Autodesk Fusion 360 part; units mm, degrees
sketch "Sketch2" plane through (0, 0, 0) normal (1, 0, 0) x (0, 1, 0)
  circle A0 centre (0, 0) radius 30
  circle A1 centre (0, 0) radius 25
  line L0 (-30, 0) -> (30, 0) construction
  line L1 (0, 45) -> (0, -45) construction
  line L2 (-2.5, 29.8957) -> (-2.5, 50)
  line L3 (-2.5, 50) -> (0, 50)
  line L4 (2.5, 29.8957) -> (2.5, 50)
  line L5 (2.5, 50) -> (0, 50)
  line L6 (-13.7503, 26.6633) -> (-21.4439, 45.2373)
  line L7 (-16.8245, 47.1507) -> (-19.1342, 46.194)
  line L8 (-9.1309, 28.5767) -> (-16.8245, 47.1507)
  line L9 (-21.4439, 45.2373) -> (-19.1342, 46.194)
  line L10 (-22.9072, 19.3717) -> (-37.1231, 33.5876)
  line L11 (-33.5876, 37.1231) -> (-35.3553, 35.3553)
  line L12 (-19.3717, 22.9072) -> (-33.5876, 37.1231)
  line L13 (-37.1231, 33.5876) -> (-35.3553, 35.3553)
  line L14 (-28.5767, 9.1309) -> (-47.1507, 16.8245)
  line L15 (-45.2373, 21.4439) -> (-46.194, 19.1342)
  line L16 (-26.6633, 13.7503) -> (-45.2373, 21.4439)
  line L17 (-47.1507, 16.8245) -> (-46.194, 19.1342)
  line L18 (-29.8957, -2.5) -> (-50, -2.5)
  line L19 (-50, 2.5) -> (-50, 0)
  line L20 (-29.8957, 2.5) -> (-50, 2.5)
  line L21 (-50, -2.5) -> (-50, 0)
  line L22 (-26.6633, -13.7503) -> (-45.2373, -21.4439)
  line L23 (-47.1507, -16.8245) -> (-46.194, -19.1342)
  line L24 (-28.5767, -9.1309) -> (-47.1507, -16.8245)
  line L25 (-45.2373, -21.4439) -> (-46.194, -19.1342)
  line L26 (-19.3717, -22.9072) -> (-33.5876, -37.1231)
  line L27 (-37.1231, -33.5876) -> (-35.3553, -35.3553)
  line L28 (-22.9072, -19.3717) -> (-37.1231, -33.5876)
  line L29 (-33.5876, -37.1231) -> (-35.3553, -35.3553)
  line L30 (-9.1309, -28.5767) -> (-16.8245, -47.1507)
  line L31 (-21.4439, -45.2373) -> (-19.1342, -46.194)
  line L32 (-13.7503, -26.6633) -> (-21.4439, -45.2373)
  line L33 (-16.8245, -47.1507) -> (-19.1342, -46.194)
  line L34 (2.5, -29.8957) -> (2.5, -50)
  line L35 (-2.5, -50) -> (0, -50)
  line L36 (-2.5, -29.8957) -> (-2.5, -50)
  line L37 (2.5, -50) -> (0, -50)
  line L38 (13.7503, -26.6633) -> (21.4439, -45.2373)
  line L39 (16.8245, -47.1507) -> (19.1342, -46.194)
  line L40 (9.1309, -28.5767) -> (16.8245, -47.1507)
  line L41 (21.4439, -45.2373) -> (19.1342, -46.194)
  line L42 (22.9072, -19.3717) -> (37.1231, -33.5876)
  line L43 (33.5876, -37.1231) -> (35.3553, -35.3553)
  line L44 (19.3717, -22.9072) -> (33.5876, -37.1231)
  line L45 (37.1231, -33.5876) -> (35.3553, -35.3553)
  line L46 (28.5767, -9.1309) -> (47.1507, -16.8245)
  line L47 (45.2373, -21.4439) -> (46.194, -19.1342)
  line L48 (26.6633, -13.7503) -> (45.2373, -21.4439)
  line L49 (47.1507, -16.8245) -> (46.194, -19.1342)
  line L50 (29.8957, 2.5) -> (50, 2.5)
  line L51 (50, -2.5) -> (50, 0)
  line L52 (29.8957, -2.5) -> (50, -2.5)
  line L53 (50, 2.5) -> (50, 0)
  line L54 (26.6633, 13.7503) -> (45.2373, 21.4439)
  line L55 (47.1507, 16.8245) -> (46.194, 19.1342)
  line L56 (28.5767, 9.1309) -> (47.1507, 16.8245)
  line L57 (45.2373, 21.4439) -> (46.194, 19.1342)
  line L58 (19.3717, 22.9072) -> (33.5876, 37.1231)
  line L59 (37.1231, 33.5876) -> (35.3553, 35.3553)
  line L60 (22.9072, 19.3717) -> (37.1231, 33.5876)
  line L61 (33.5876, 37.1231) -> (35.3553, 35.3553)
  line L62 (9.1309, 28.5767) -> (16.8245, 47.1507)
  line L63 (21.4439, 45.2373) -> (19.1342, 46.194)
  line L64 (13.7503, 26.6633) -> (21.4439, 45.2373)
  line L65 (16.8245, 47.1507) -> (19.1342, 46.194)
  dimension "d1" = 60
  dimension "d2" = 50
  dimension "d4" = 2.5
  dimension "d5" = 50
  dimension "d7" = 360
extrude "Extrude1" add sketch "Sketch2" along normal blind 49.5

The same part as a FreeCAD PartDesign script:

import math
import FreeCAD as App
import Part
import Sketcher
from FreeCAD import Vector
Q = App.Units.Quantity

doc = App.newDocument("Part")
body = doc.addObject("PartDesign::Body", "Body")

# Sketch on YZ plane
sketch1 = body.newObject("Sketcher::SketchObject", "Sketch")
sketch1.AttachmentSupport = (doc.getObject("YZ_Plane"), [""])
sketch1.MapMode = "FlatFace"
sketch1.addGeometry([
    Part.ArcOfCircle(Part.Circle(Vector(0, 0, 0), Vector(0, 0, 1), 30), math.radians(-17.72), math.radians(-4.78)),  # 0
    Part.LineSegment(Vector(29.9, -2.5, 0), Vector(50, -2.5, 0)),  # 1
    Part.LineSegment(Vector(50, -2.5, 0), Vector(50, 2.5, 0)),  # 2
    Part.LineSegment(Vector(50, 2.5, 0), Vector(29.9, 2.5, 0)),  # 3
    Part.ArcOfCircle(Part.Circle(Vector(0, 0, 0), Vector(0, 0, 1), 30), math.radians(4.78), math.radians(17.72)),  # 4
    Part.LineSegment(Vector(28.6, 9.1, 0), Vector(47.2, 16.8, 0)),  # 5
    Part.LineSegment(Vector(47.2, 16.8, 0), Vector(45.2, 21.4, 0)),  # 6
    Part.LineSegment(Vector(45.2, 21.4, 0), Vector(26.7, 13.8, 0)),  # 7
    Part.ArcOfCircle(Part.Circle(Vector(0, 0, 0), Vector(0, 0, 1), 30), math.radians(27.28), math.radians(40.22)),  # 8
    Part.LineSegment(Vector(22.9, 19.4, 0), Vector(37.1, 33.6, 0)),  # 9
    Part.LineSegment(Vector(37.1, 33.6, 0), Vector(35.4, 35.4, 0)),  # 10
    Part.LineSegment(Vector(35.4, 35.4, 0), Vector(33.6, 37.1, 0)),  # 11
    Part.LineSegment(Vector(33.6, 37.1, 0), Vector(19.4, 22.9, 0)),  # 12
    Part.ArcOfCircle(Part.Circle(Vector(0, 0, 0), Vector(0, 0, 1), 30), math.radians(49.78), math.radians(62.72)),  # 13
    Part.LineSegment(Vector(13.8, 26.7, 0), Vector(21.4, 45.2, 0)),  # 14
    Part.LineSegment(Vector(21.4, 45.2, 0), Vector(16.8, 47.2, 0)),  # 15
    Part.LineSegment(Vector(16.8, 47.2, 0), Vector(9.1, 28.6, 0)),  # 16
    Part.ArcOfCircle(Part.Circle(Vector(0, 0, 0), Vector(0, 0, 1), 30), math.radians(72.28), math.radians(85.22)),  # 17
    Part.LineSegment(Vector(2.5, 29.9, 0), Vector(2.5, 50, 0)),  # 18
    Part.LineSegment(Vector(2.5, 50, 0), Vector(-2.5, 50, 0)),  # 19
    Part.LineSegment(Vector(-2.5, 50, 0), Vector(-2.5, 29.9, 0)),  # 20
    Part.ArcOfCircle(Part.Circle(Vector(0, 0, 0), Vector(0, 0, 1), 30), math.radians(94.78), math.radians(107.72)),  # 21
    Part.LineSegment(Vector(-9.1, 28.6, 0), Vector(-16.8, 47.2, 0)),  # 22
    Part.LineSegment(Vector(-16.8, 47.2, 0), Vector(-21.4, 45.2, 0)),  # 23
    Part.LineSegment(Vector(-21.4, 45.2, 0), Vector(-13.8, 26.7, 0)),  # 24
    Part.ArcOfCircle(Part.Circle(Vector(0, 0, 0), Vector(0, 0, 1), 30), math.radians(117.28), math.radians(130.22)),  # 25
    Part.LineSegment(Vector(-19.4, 22.9, 0), Vector(-33.6, 37.1, 0)),  # 26
    Part.LineSegment(Vector(-33.6, 37.1, 0), Vector(-35.4, 35.4, 0)),  # 27
    Part.LineSegment(Vector(-35.4, 35.4, 0), Vector(-37.1, 33.6, 0)),  # 28
    Part.LineSegment(Vector(-37.1, 33.6, 0), Vector(-22.9, 19.4, 0)),  # 29
    Part.ArcOfCircle(Part.Circle(Vector(0, 0, 0), Vector(0, 0, 1), 30), math.radians(139.78), math.radians(152.72)),  # 30
    Part.LineSegment(Vector(-26.7, 13.8, 0), Vector(-45.2, 21.4, 0)),  # 31
    Part.LineSegment(Vector(-45.2, 21.4, 0), Vector(-47.2, 16.8, 0)),  # 32
    Part.LineSegment(Vector(-47.2, 16.8, 0), Vector(-28.6, 9.1, 0)),  # 33
    Part.ArcOfCircle(Part.Circle(Vector(0, 0, 0), Vector(0, 0, 1), 30), math.radians(162.28), math.radians(175.22)),  # 34
    Part.LineSegment(Vector(-29.9, 2.5, 0), Vector(-50, 2.5, 0)),  # 35
    Part.LineSegment(Vector(-50, 2.5, 0), Vector(-50, -2.5, 0)),  # 36
    Part.LineSegment(Vector(-50, -2.5, 0), Vector(-29.9, -2.5, 0)),  # 37
    Part.ArcOfCircle(Part.Circle(Vector(0, 0, 0), Vector(0, 0, 1), 30), math.radians(-175.22), math.radians(-162.28)),  # 38
    Part.LineSegment(Vector(-28.6, -9.1, 0), Vector(-47.2, -16.8, 0)),  # 39
    Part.LineSegment(Vector(-47.2, -16.8, 0), Vector(-45.2, -21.4, 0)),  # 40
    Part.LineSegment(Vector(-45.2, -21.4, 0), Vector(-26.7, -13.8, 0)),  # 41
    Part.ArcOfCircle(Part.Circle(Vector(0, 0, 0), Vector(0, 0, 1), 30), math.radians(-152.72), math.radians(-139.78)),  # 42
    Part.LineSegment(Vector(-22.9, -19.4, 0), Vector(-37.1, -33.6, 0)),  # 43
    Part.LineSegment(Vector(-37.1, -33.6, 0), Vector(-35.4, -35.4, 0)),  # 44
    Part.LineSegment(Vector(-35.4, -35.4, 0), Vector(-33.6, -37.1, 0)),  # 45
    Part.LineSegment(Vector(-33.6, -37.1, 0), Vector(-19.4, -22.9, 0)),  # 46
    Part.ArcOfCircle(Part.Circle(Vector(0, 0, 0), Vector(0, 0, 1), 30), math.radians(-130.22), math.radians(-117.28)),  # 47
    Part.LineSegment(Vector(-13.8, -26.7, 0), Vector(-21.4, -45.2, 0)),  # 48
    Part.LineSegment(Vector(-21.4, -45.2, 0), Vector(-16.8, -47.2, 0)),  # 49
    Part.LineSegment(Vector(-16.8, -47.2, 0), Vector(-9.1, -28.6, 0)),  # 50
    Part.ArcOfCircle(Part.Circle(Vector(0, 0, 0), Vector(0, 0, 1), 30), math.radians(-107.72), math.radians(-94.78)),  # 51
    Part.LineSegment(Vector(-2.5, -29.9, 0), Vector(-2.5, -50, 0)),  # 52
    Part.LineSegment(Vector(-2.5, -50, 0), Vector(2.5, -50, 0)),  # 53
    Part.LineSegment(Vector(2.5, -50, 0), Vector(2.5, -29.9, 0)),  # 54
    Part.ArcOfCircle(Part.Circle(Vector(0, 0, 0), Vector(0, 0, 1), 30), math.radians(-85.22), math.radians(-72.28)),  # 55
    Part.LineSegment(Vector(9.1, -28.6, 0), Vector(16.8, -47.2, 0)),  # 56
    Part.LineSegment(Vector(16.8, -47.2, 0), Vector(21.4, -45.2, 0)),  # 57
    Part.LineSegment(Vector(21.4, -45.2, 0), Vector(13.8, -26.7, 0)),  # 58
    Part.ArcOfCircle(Part.Circle(Vector(0, 0, 0), Vector(0, 0, 1), 30), math.radians(-62.72), math.radians(-49.78)),  # 59
    Part.LineSegment(Vector(19.4, -22.9, 0), Vector(33.6, -37.1, 0)),  # 60
    Part.LineSegment(Vector(33.6, -37.1, 0), Vector(35.4, -35.4, 0)),  # 61
    Part.LineSegment(Vector(35.4, -35.4, 0), Vector(37.1, -33.6, 0)),  # 62
    Part.LineSegment(Vector(37.1, -33.6, 0), Vector(22.9, -19.4, 0)),  # 63
    Part.ArcOfCircle(Part.Circle(Vector(0, 0, 0), Vector(0, 0, 1), 30), math.radians(-40.22), math.radians(-27.28)),  # 64
    Part.LineSegment(Vector(26.7, -13.8, 0), Vector(45.2, -21.4, 0)),  # 65
    Part.LineSegment(Vector(45.2, -21.4, 0), Vector(47.2, -16.8, 0)),  # 66
    Part.LineSegment(Vector(47.2, -16.8, 0), Vector(28.6, -9.1, 0)),  # 67
    Part.Circle(Vector(0, 0, 0), Vector(0, 0, 1), 25),  # 68
], False)
sketch1.addConstraint([
    Sketcher.Constraint("Coincident", 0, 2, 1, 1),
    Sketcher.Constraint("Coincident", 1, 2, 2, 1),
    Sketcher.Constraint("Coincident", 2, 2, 3, 1),
    Sketcher.Constraint("Coincident", 3, 2, 4, 1),
    Sketcher.Constraint("Coincident", 4, 2, 5, 1),
    Sketcher.Constraint("Coincident", 5, 2, 6, 1),
    Sketcher.Constraint("Coincident", 6, 2, 7, 1),
    Sketcher.Constraint("Coincident", 7, 2, 8, 1),
    Sketcher.Constraint("Coincident", 8, 2, 9, 1),
    Sketcher.Constraint("Coincident", 9, 2, 10, 1),
    Sketcher.Constraint("Coincident", 10, 2, 11, 1),
    Sketcher.Constraint("Coincident", 11, 2, 12, 1),
    Sketcher.Constraint("Coincident", 12, 2, 13, 1),
    Sketcher.Constraint("Coincident", 13, 2, 14, 1),
    Sketcher.Constraint("Coincident", 14, 2, 15, 1),
    Sketcher.Constraint("Coincident", 15, 2, 16, 1),
    Sketcher.Constraint("Coincident", 16, 2, 17, 1),
    Sketcher.Constraint("Coincident", 17, 2, 18, 1),
    Sketcher.Constraint("Coincident", 18, 2, 19, 1),
    Sketcher.Constraint("Coincident", 19, 2, 20, 1),
    Sketcher.Constraint("Coincident", 20, 2, 21, 1),
    Sketcher.Constraint("Coincident", 21, 2, 22, 1),
    Sketcher.Constraint("Coincident", 22, 2, 23, 1),
    Sketcher.Constraint("Coincident", 23, 2, 24, 1),
    Sketcher.Constraint("Coincident", 24, 2, 25, 1),
    Sketcher.Constraint("Coincident", 25, 2, 26, 1),
    Sketcher.Constraint("Coincident", 26, 2, 27, 1),
    Sketcher.Constraint("Coincident", 27, 2, 28, 1),
    Sketcher.Constraint("Coincident", 28, 2, 29, 1),
    Sketcher.Constraint("Coincident", 29, 2, 30, 1),
    Sketcher.Constraint("Coincident", 30, 2, 31, 1),
    Sketcher.Constraint("Coincident", 31, 2, 32, 1),
    Sketcher.Constraint("Coincident", 32, 2, 33, 1),
    Sketcher.Constraint("Coincident", 33, 2, 34, 1),
    Sketcher.Constraint("Coincident", 34, 2, 35, 1),
    Sketcher.Constraint("Coincident", 35, 2, 36, 1),
    Sketcher.Constraint("Coincident", 36, 2, 37, 1),
    Sketcher.Constraint("Coincident", 37, 2, 38, 1),
    Sketcher.Constraint("Coincident", 38, 2, 39, 1),
    Sketcher.Constraint("Coincident", 39, 2, 40, 1),
    Sketcher.Constraint("Coincident", 40, 2, 41, 1),
    Sketcher.Constraint("Coincident", 41, 2, 42, 1),
    Sketcher.Constraint("Coincident", 42, 2, 43, 1),
    Sketcher.Constraint("Coincident", 43, 2, 44, 1),
    Sketcher.Constraint("Coincident", 44, 2, 45, 1),
    Sketcher.Constraint("Coincident", 45, 2, 46, 1),
    Sketcher.Constraint("Coincident", 46, 2, 47, 1),
    Sketcher.Constraint("Coincident", 47, 2, 48, 1),
    Sketcher.Constraint("Coincident", 48, 2, 49, 1),
    Sketcher.Constraint("Coincident", 49, 2, 50, 1),
    Sketcher.Constraint("Coincident", 50, 2, 51, 1),
    Sketcher.Constraint("Coincident", 51, 2, 52, 1),
    Sketcher.Constraint("Coincident", 52, 2, 53, 1),
    Sketcher.Constraint("Coincident", 53, 2, 54, 1),
    Sketcher.Constraint("Coincident", 54, 2, 55, 1),
    Sketcher.Constraint("Coincident", 55, 2, 56, 1),
    Sketcher.Constraint("Coincident", 56, 2, 57, 1),
    Sketcher.Constraint("Coincident", 57, 2, 58, 1),
    Sketcher.Constraint("Coincident", 58, 2, 59, 1),
    Sketcher.Constraint("Coincident", 59, 2, 60, 1),
    Sketcher.Constraint("Coincident", 60, 2, 61, 1),
    Sketcher.Constraint("Coincident", 61, 2, 62, 1),
    Sketcher.Constraint("Coincident", 62, 2, 63, 1),
    Sketcher.Constraint("Coincident", 63, 2, 64, 1),
    Sketcher.Constraint("Coincident", 64, 2, 65, 1),
    Sketcher.Constraint("Coincident", 65, 2, 66, 1),
    Sketcher.Constraint("Coincident", 66, 2, 67, 1),
    Sketcher.Constraint("Coincident", 67, 2, 0, 1),
    Sketcher.Constraint("Horizontal", 1),
    Sketcher.Constraint("Vertical", 2),
    Sketcher.Constraint("Horizontal", 3),
    Sketcher.Constraint("Vertical", 18),
    Sketcher.Constraint("Horizontal", 19),
    Sketcher.Constraint("Vertical", 20),
    Sketcher.Constraint("Horizontal", 35),
    Sketcher.Constraint("Vertical", 36),
    Sketcher.Constraint("Horizontal", 37),
    Sketcher.Constraint("Vertical", 52),
    Sketcher.Constraint("Horizontal", 53),
    Sketcher.Constraint("Vertical", 54),
    Sketcher.Constraint("Coincident", 0, 3, -1, 1),
    Sketcher.Constraint("Coincident", 4, 3, -1, 1),
    Sketcher.Constraint("Coincident", 8, 3, -1, 1),
    Sketcher.Constraint("Coincident", 13, 3, -1, 1),
    Sketcher.Constraint("Coincident", 17, 3, -1, 1),
    Sketcher.Constraint("Coincident", 21, 3, -1, 1),
    Sketcher.Constraint("Coincident", 25, 3, -1, 1),
    Sketcher.Constraint("Coincident", 30, 3, -1, 1),
    Sketcher.Constraint("Coincident", 34, 3, -1, 1),
    Sketcher.Constraint("Coincident", 38, 3, -1, 1),
    Sketcher.Constraint("Coincident", 42, 3, -1, 1),
    Sketcher.Constraint("Coincident", 47, 3, -1, 1),
    Sketcher.Constraint("Coincident", 51, 3, -1, 1),
    Sketcher.Constraint("Coincident", 55, 3, -1, 1),
    Sketcher.Constraint("Coincident", 59, 3, -1, 1),
    Sketcher.Constraint("Coincident", 64, 3, -1, 1),
    Sketcher.Constraint("Coincident", 68, 3, -1, 1),
    Sketcher.Constraint("Equal", 0, 4),
    Sketcher.Constraint("Equal", 4, 8),
    Sketcher.Constraint("Equal", 8, 13),
    Sketcher.Constraint("Equal", 13, 17),
    Sketcher.Constraint("Equal", 17, 21),
    Sketcher.Constraint("Equal", 21, 25),
    Sketcher.Constraint("Equal", 25, 30),
    Sketcher.Constraint("Equal", 30, 34),
    Sketcher.Constraint("Equal", 34, 38),
    Sketcher.Constraint("Equal", 38, 42),
    Sketcher.Constraint("Equal", 42, 47),
    Sketcher.Constraint("Equal", 47, 51),
    Sketcher.Constraint("Equal", 51, 55),
    Sketcher.Constraint("Equal", 55, 59),
    Sketcher.Constraint("Equal", 59, 64),
    Sketcher.Constraint("Symmetric", 1, 2, 35, 2, -1, 1),
    Sketcher.Constraint("Symmetric", 5, 2, 39, 2, -1, 1),
    Sketcher.Constraint("Symmetric", 6, 2, 40, 2, -1, 1),
    Sketcher.Constraint("Symmetric", 9, 2, 43, 2, -1, 1),
    Sketcher.Constraint("Symmetric", 10, 2, 44, 2, -1, 1),
    Sketcher.Constraint("Symmetric", 11, 2, 45, 2, -1, 1),
    Sketcher.Constraint("Symmetric", 14, 2, 48, 2, -1, 1),
    Sketcher.Constraint("Symmetric", 15, 2, 49, 2, -1, 1),
    Sketcher.Constraint("Symmetric", 18, 2, 52, 2, -1, 1),
    Sketcher.Constraint("Symmetric", 22, 2, 56, 2, -1, 1),
    Sketcher.Constraint("Symmetric", 23, 2, 57, 2, -1, 1),
    Sketcher.Constraint("Symmetric", 26, 2, 60, 2, -1, 1),
    Sketcher.Constraint("Symmetric", 27, 2, 61, 2, -1, 1),
    Sketcher.Constraint("Symmetric", 28, 2, 62, 2, -1, 1),
    Sketcher.Constraint("Symmetric", 31, 2, 65, 2, -1, 1),
    Sketcher.Constraint("Symmetric", 32, 2, 66, 2, -1, 1),
    Sketcher.Constraint("Symmetric", 15, 2, 22, 2, -2),
    Sketcher.Constraint("Symmetric", 14, 2, 23, 2, -2),
    Sketcher.Constraint("Symmetric", 11, 2, 26, 2, -2),
    Sketcher.Constraint("Symmetric", 10, 2, 27, 2, -2),
    Sketcher.Constraint("Symmetric", 9, 2, 28, 2, -2),
    Sketcher.Constraint("Symmetric", 6, 2, 31, 2, -2),
    Sketcher.Constraint("Symmetric", 5, 2, 32, 2, -2),
    Sketcher.Constraint("Perpendicular", 5, 6),
    Sketcher.Constraint("Perpendicular", 6, 7),
    Sketcher.Constraint("Perpendicular", 9, 10),
    Sketcher.Constraint("Parallel", 10, 11),
    Sketcher.Constraint("Perpendicular", 11, 12),
    Sketcher.Constraint("Perpendicular", 14, 15),
    Sketcher.Constraint("Perpendicular", 15, 16),
    Sketcher.Constraint("Perpendicular", 7, 22),
    Sketcher.Constraint("Perpendicular", 22, 23),
    Sketcher.Constraint("Perpendicular", 23, 24),
    Sketcher.Constraint("Perpendicular", 12, 26),
    Sketcher.Constraint("Perpendicular", 26, 27),
    Sketcher.Constraint("Perpendicular", 28, 29),
    Sketcher.Constraint("Perpendicular", 16, 31),
    Sketcher.Constraint("Perpendicular", 32, 33),
    Sketcher.Constraint("Perpendicular", 24, 39),
    Sketcher.Constraint("Perpendicular", 40, 41),
    Sketcher.Constraint("Perpendicular", 29, 43),
    Sketcher.Constraint("Perpendicular", 45, 46),
    Sketcher.Constraint("Perpendicular", 33, 48),
    Sketcher.Constraint("Perpendicular", 49, 50),
    Sketcher.Constraint("Perpendicular", 41, 56),
    Sketcher.Constraint("Perpendicular", 57, 58),
    Sketcher.Constraint("Perpendicular", 46, 60),
    Sketcher.Constraint("Perpendicular", 62, 63),
    Sketcher.Constraint("Perpendicular", 50, 65),
    Sketcher.Constraint("Perpendicular", 66, 67),
    Sketcher.Constraint("Horizontal", 17, 2, 20, 2),
    Sketcher.Constraint("Horizontal", 3, 2, 34, 2),
    Sketcher.Constraint("Horizontal", 1, 2, 36, 2),
    Sketcher.Constraint("Horizontal", 51, 2, 54, 2),
    Sketcher.Constraint("Equal", 53, 2),
    Sketcher.Constraint("Equal", 37, 18),
    Sketcher.Constraint("Equal", 5, 7),
    Sketcher.Constraint("Equal", 7, 9),
    Sketcher.Constraint("Equal", 10, 11),
    Sketcher.Constraint("Equal", 9, 12),
    Sketcher.Constraint("Equal", 12, 14),
    Sketcher.Constraint("Equal", 6, 15),
    Sketcher.Constraint("Equal", 14, 16),
    Sketcher.Constraint("Diameter", 68, 50.0),
    Sketcher.Constraint("Radius", 0, 30.0),
    Sketcher.Constraint("DistanceX", -1, 1, 1, 2, 50.0),
    Sketcher.Constraint("Distance", 10, 2.5),
    Sketcher.Constraint("DistanceY", 0, 2, -1, 1, 2.5),
    Sketcher.Constraint("Distance", 6, 5.0),
    Sketcher.Constraint("Angle", 5, Q("22.5 deg")),
    Sketcher.Constraint("DistanceY", -1, 1, 6, 2, 21.444),
])
pad1 = body.newObject("PartDesign::Pad", "Pad")
pad1.Profile = sketch1
pad1.Length = 49.5

doc.recompute()
